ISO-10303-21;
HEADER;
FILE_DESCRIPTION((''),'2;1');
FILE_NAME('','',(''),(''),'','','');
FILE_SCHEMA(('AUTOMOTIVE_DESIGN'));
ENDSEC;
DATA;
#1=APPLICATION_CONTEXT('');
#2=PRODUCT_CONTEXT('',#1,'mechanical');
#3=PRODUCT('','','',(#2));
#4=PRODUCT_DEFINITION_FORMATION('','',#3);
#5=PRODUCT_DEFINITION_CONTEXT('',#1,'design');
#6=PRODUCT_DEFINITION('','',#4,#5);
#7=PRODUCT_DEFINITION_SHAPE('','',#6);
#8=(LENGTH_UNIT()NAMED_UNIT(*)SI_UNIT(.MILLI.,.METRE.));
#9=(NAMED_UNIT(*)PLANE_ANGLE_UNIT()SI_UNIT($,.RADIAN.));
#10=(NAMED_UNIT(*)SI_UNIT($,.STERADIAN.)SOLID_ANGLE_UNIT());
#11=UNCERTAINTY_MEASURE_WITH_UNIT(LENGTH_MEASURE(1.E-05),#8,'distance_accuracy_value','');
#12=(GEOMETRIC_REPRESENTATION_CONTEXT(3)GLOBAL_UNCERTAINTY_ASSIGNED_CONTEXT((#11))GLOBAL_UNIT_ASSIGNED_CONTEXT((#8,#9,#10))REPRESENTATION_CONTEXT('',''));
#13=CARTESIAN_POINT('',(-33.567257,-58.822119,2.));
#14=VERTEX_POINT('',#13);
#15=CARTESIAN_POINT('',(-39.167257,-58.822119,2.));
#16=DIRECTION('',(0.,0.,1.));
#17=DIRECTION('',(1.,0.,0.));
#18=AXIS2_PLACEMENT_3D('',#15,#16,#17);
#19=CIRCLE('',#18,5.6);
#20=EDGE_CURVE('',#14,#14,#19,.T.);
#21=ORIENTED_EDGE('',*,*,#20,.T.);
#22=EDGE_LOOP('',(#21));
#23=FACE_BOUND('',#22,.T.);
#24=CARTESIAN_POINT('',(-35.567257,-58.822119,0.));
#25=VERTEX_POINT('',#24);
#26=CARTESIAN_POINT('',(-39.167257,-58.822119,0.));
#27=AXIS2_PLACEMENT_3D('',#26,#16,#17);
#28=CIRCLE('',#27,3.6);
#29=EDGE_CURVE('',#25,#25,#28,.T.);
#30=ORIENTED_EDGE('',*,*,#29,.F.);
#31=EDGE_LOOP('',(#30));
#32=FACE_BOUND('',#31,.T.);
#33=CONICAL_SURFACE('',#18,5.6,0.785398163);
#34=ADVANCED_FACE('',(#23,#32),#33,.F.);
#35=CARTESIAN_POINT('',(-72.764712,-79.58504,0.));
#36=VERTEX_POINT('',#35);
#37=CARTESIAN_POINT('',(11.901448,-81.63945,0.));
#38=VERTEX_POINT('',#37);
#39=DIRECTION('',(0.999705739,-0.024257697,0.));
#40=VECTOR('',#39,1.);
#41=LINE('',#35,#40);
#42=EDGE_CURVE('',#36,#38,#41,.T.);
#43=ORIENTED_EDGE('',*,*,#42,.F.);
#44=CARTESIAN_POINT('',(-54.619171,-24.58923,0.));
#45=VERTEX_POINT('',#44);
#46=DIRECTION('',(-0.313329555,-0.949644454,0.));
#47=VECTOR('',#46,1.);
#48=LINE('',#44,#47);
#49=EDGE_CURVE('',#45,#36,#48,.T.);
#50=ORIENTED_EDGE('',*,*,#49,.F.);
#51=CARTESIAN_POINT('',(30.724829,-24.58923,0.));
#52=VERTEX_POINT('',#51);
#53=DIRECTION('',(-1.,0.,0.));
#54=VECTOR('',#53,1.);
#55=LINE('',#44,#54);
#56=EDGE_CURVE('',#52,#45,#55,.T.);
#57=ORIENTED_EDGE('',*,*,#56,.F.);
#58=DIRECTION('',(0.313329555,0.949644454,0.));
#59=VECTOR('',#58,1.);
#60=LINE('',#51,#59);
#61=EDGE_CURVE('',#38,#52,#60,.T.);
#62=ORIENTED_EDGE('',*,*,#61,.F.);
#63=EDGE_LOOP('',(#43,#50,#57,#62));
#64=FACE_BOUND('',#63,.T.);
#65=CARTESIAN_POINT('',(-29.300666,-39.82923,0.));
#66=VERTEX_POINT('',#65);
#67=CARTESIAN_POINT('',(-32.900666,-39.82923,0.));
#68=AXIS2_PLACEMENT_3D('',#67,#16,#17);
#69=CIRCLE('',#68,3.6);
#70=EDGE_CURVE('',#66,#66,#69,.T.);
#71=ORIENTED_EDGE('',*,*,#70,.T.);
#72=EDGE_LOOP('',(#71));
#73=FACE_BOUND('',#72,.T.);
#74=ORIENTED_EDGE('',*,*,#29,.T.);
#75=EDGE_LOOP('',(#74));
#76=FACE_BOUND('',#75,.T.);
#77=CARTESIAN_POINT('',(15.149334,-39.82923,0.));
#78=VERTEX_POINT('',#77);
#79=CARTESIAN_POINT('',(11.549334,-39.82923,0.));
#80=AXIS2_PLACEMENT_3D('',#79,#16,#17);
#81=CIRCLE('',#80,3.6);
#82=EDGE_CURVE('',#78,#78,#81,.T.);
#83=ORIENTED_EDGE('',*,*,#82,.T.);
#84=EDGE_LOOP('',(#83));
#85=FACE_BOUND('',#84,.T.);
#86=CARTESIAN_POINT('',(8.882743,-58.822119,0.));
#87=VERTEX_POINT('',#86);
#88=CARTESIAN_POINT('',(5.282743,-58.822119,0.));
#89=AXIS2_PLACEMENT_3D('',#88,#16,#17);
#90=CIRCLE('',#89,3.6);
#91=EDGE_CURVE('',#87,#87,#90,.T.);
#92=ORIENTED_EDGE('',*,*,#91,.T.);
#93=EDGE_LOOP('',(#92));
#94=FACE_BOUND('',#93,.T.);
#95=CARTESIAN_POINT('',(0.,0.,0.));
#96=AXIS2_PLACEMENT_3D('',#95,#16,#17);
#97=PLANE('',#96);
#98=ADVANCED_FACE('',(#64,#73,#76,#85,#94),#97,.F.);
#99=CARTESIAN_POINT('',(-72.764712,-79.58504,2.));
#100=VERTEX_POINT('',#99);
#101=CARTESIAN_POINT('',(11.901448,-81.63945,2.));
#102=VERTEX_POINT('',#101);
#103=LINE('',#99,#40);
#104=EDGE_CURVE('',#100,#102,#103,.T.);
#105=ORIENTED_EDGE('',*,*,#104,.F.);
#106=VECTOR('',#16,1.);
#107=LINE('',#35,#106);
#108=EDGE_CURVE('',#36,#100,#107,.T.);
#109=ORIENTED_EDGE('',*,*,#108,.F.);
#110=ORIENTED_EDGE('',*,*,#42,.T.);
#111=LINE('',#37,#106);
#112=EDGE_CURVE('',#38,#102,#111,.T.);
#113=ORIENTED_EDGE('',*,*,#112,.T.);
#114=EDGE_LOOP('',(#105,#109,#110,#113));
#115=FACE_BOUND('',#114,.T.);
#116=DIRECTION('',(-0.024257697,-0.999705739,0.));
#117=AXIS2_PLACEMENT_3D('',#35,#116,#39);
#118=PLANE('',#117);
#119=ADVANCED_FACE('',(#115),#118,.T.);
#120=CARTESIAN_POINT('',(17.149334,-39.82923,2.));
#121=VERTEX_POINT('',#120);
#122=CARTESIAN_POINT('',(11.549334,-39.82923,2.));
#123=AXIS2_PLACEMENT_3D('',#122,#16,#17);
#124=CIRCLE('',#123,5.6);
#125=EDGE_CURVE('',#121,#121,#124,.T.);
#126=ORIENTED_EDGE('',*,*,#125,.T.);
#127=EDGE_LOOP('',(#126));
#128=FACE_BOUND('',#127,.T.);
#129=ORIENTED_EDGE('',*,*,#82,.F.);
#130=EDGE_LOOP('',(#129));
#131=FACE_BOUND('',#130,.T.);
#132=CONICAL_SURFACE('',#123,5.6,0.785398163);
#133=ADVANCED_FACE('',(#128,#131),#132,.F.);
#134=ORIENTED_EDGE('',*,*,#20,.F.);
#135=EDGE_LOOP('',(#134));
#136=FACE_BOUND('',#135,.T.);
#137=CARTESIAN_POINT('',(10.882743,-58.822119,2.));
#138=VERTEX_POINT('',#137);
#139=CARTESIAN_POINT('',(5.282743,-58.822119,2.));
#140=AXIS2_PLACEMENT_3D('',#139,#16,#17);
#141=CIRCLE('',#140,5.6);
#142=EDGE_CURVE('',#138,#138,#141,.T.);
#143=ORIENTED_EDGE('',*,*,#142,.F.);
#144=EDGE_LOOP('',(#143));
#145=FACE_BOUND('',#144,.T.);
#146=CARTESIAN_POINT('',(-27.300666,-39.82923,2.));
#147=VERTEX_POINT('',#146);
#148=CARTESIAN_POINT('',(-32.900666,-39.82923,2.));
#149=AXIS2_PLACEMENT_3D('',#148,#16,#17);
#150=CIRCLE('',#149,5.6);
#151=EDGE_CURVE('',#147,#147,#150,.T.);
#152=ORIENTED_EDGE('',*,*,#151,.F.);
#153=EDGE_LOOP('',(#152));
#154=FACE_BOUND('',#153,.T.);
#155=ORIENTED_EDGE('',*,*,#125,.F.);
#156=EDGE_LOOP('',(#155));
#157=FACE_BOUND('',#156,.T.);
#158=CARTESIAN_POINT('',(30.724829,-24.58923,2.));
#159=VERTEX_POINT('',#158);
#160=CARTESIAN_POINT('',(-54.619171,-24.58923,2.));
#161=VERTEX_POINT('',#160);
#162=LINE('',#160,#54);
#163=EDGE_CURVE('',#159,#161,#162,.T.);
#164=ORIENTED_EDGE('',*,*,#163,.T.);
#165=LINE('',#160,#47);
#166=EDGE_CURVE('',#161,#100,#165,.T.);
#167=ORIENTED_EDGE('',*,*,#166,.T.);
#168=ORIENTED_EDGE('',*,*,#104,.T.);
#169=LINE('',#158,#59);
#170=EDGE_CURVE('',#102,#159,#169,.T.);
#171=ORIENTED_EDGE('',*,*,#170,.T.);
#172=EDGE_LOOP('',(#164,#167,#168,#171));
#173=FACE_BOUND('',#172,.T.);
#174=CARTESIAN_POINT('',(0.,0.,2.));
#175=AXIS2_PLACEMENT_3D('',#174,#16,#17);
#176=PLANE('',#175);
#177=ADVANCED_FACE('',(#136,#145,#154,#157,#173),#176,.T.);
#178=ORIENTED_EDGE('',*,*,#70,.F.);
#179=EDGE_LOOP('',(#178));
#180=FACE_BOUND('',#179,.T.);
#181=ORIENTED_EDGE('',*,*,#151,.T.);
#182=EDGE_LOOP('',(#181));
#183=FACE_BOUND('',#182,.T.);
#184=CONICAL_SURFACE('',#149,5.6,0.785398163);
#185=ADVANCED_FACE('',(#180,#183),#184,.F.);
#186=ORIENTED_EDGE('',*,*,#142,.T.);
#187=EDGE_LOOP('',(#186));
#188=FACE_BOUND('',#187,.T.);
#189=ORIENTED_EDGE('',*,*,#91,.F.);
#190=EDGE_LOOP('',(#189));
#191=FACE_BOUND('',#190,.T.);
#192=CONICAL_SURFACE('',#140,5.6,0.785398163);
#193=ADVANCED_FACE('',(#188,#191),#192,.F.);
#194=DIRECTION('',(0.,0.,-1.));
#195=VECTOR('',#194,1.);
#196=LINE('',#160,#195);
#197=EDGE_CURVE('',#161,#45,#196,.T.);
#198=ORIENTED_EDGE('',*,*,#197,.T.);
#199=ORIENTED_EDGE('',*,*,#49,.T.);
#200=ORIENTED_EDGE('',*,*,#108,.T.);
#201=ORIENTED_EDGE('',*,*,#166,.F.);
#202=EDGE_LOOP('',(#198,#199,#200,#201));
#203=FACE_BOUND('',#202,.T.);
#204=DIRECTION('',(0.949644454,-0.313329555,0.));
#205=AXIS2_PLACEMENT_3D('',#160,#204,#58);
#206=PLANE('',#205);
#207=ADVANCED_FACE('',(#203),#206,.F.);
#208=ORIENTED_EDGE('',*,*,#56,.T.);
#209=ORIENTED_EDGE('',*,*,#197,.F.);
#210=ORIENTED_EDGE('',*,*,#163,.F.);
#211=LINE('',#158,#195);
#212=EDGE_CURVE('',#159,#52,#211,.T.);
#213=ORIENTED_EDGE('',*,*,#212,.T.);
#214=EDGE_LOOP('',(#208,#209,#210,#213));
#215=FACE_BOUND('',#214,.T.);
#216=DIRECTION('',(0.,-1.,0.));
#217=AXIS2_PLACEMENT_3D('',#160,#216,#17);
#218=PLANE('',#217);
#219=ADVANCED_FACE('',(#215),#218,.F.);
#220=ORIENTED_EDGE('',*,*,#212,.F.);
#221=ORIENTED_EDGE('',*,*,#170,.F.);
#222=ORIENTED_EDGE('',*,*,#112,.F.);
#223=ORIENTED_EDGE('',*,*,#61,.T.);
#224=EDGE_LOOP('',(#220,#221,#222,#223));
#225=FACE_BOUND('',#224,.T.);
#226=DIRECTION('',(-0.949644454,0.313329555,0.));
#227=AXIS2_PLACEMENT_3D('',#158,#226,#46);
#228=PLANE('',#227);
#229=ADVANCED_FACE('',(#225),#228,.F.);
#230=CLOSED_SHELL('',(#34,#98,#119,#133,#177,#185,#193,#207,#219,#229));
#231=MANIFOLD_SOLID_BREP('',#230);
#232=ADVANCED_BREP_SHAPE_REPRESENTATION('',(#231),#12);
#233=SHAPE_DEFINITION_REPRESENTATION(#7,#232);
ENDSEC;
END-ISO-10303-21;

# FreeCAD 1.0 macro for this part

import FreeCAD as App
import Part
import Sketcher
Q = App.Units.Quantity


def add_polygon(sketch, points):
    """Adds a closed chain of lines whose ends are joined by coincident constraints."""
    first, n = sketch.GeometryCount, len(points)
    for a, b in zip(points, points[1:] + points[:1]):
        sketch.addGeometry(Part.LineSegment(App.Vector(*a, 0), App.Vector(*b, 0)), False)
    for i in range(n):
        sketch.addConstraint(Sketcher.Constraint("Coincident", first + i, 2, first + (i + 1) % n, 1))

doc = App.newDocument("Part")
params = doc.addObject("Spreadsheet::Sheet", "Params")
for row, (alias, value) in enumerate([
    ("pad1_length", "2 mm"),
    ("pad2_length", "2 mm"),
    ("sketch3_diameter", "5 mm"),
    ("pocket1_length", "2 mm"),
    ("sketch4_height", "2 mm"),
    ("sketch4_width", "5.6 mm"),
    ("sketch4_width2", "2.75 mm"),
    ("groove_angle", "360 deg"),
    ("linearpattern_pitch", "44.45 mm"),
    ("linearpattern2_pitch", "42.646249 mm"),
    ("linearpattern3_pitch", "20 mm"),
], start=1):
    params.set(f"A{row}", alias)
    params.set(f"B{row}", "=" + value)
    params.setAlias(f"B{row}", alias)

body = doc.addObject("PartDesign::Body", "Body")

# Sketch on XY plane
sketch1 = doc.addObject("Sketcher::SketchObject", "Sketch")
body.addObject(sketch1)
sketch1.AttachmentSupport = (doc.XY_Plane, [""])
sketch1.MapMode = "FlatFace"
add_polygon(sketch1, [(30.724829, -24.58923), (-54.619171, -24.58923), (-71.491341, -75.725685), (13.852659, -75.725685)])  # lines 0-3
sketch1.addConstraint([
    Sketcher.Constraint("Horizontal", 0),
    Sketcher.Constraint("Horizontal", 2),
    Sketcher.Constraint("Parallel", 1, 3),
    Sketcher.Constraint("Angle", 1, Q("-108.26 deg")),
    Sketcher.Constraint("DistanceX", 0, 2, 0, 1, 85.344),
    Sketcher.Constraint("Distance", 1, 53.848),
    Sketcher.Constraint("DistanceX", 0, 2, -1, 1, 54.619171),
    Sketcher.Constraint("DistanceY", 0, 2, -1, 1, 24.58923),
])
pad1 = doc.addObject("PartDesign::Pad", "Pad")
body.addObject(pad1)
pad1.Profile = sketch1
pad1.setExpression("Length", "Params.pad1_length")

# Sketch on XY plane
sketch2 = doc.addObject("Sketcher::SketchObject", "Sketch001")
body.addObject(sketch2)
sketch2.AttachmentSupport = (doc.XY_Plane, [""])
sketch2.MapMode = "FlatFace"
sketch2.AttachmentOffset = App.Placement(App.Vector(0, 0, 2), App.Rotation())
add_polygon(sketch2, [(-72.764712, -79.58504), (11.901448, -81.63945), (13.852659, -75.725685), (-71.491341, -75.725685)])  # lines 0-3
sketch2.addConstraint([
    Sketcher.Constraint("Horizontal", 2),
    Sketcher.Constraint("Parallel", 1, 3),
    Sketcher.Constraint("Angle", 0, Q("-1.39 deg")),
    Sketcher.Constraint("Angle", 1, Q("71.74 deg")),
    Sketcher.Constraint("DistanceX", 2, 2, 2, 1, 85.344),
    Sketcher.Constraint("Distance", 3, 4.064),
    Sketcher.Constraint("DistanceY", 0, 2, -1, 1, 81.63945),
    Sketcher.Constraint("DistanceX", -1, 1, 1, 2, 13.852659),
])
pad2 = doc.addObject("PartDesign::Pad", "Pad001")
body.addObject(pad2)
pad2.Profile = sketch2
pad2.setExpression("Length", "Params.pad2_length")
pad2.Reversed = True

# Sketch on XY plane
sketch3 = doc.addObject("Sketcher::SketchObject", "Sketch002")
body.addObject(sketch3)
sketch3.AttachmentSupport = (doc.XY_Plane, [""])
sketch3.MapMode = "FlatFace"
sketch3.AttachmentOffset = App.Placement(App.Vector(0, 0, 2), App.Rotation())
sketch3.addGeometry([
    Part.Circle(App.Vector(-32.900666, -39.82923, 0), App.Vector(0, 0, 1), 2.5),
    Part.Circle(App.Vector(11.549334, -39.82923, 0), App.Vector(0, 0, 1), 2.5),
    Part.Circle(App.Vector(5.282743, -58.822119, 0), App.Vector(0, 0, 1), 2.5),
    Part.Circle(App.Vector(-39.167257, -58.822119, 0), App.Vector(0, 0, 1), 2.5),
], False)
sketch3.addConstraint([
    Sketcher.Constraint("Equal", 0, 1),
    Sketcher.Constraint("Equal", 1, 2),
    Sketcher.Constraint("Equal", 2, 3),
    Sketcher.Constraint("Horizontal", 0, 3, 1, 3),
    Sketcher.Constraint("Horizontal", 2, 3, 3, 3),
    Sketcher.Constraint("Diameter", 0, 5.0),
    Sketcher.Constraint("DistanceX", 0, 3, 1, 3, 44.45),
    Sketcher.Constraint("DistanceX", 3, 3, 2, 3, 44.45),
    Sketcher.Constraint("DistanceY", 0, 3, -1, 1, 39.82923),
    Sketcher.Constraint("DistanceY", 2, 3, -1, 1, 58.822119),
    Sketcher.Constraint("DistanceX", 2, 3, 1, 3, 6.266591),
    Sketcher.Constraint("DistanceX", 0, 3, -1, 1, 32.900666),
])
sketch3.setExpression("Constraints[5]", "Params.sketch3_diameter")
pocket1 = doc.addObject("PartDesign::Pocket", "Pocket")
body.addObject(pocket1)
pocket1.Profile = sketch3
pocket1.setExpression("Length", "Params.pocket1_length")

# Sketch on YZ plane
sketch4 = doc.addObject("Sketcher::SketchObject", "Sketch003")
body.addObject(sketch4)
sketch4.AttachmentSupport = (doc.YZ_Plane, [""])
sketch4.MapMode = "FlatFace"
sketch4.AttachmentOffset = App.Placement(App.Vector(0, 0, -32.900666), App.Rotation())
add_polygon(sketch4, [(-39.82923, 0), (-39.82923, 2), (-45.42923, 2), (-42.57923, -0.85), (-42.57923, 0)])  # lines 0-4
sketch4.addGeometry(Part.LineSegment(App.Vector(-39.82923, 2, 0), App.Vector(-39.82923, -0.85, 0)), True)  # axis
sketch4.addConstraint([
    Sketcher.Constraint("Vertical", 0),
    Sketcher.Constraint("Horizontal", 1),
    Sketcher.Constraint("Vertical", 3),
    Sketcher.Constraint("Horizontal", 4),
    Sketcher.Constraint("Vertical", 5),
    Sketcher.Constraint("Coincident", 5, 1, 0, 2),
    Sketcher.Constraint("PointOnObject", 3, 2, -1),
    Sketcher.Constraint("Horizontal", 2, 2, 5, 2),
    Sketcher.Constraint("DistanceY", 0, 1, 0, 2, 2.0),
    Sketcher.Constraint("Angle", 2, Q("-45 deg")),
    Sketcher.Constraint("DistanceX", 1, 2, 1, 1, 5.6),
    Sketcher.Constraint("DistanceX", 4, 1, 4, 2, 2.75),
    Sketcher.Constraint("DistanceX", 0, 2, -1, 1, 39.82923),
])
sketch4.setExpression("Constraints[13]", "Params.sketch4_height")
sketch4.setExpression("Constraints[15]", "Params.sketch4_width")
sketch4.setExpression("Constraints[16]", "Params.sketch4_width2")
groove = doc.addObject("PartDesign::Groove", "Groove")
body.addObject(groove)
groove.Profile = sketch4
groove.ReferenceAxis = (sketch4, ["Axis0"])
groove.setExpression("Angle", "Params.groove_angle")
doc.recompute()

linearpattern = doc.addObject("PartDesign::LinearPattern", "LinearPattern")
body.addObject(linearpattern)
linearpattern.Originals = [groove]
linearpattern.Direction = (doc.X_Axis, [""])
linearpattern.Mode = "offset"
linearpattern.setExpression("Offset", "Params.linearpattern_pitch")
linearpattern.Occurrences = 2
body.Tip = linearpattern
doc.recompute()

datumline = doc.addObject("PartDesign::Line", "DatumLine")
body.addObject(datumline)
datumline.Placement = App.Placement(App.Vector(0, 0, 0), App.Rotation(App.Vector(0, 0, 1), App.Vector(0.895352108, -0.44535896, 0)))
linearpattern2 = doc.addObject("PartDesign::LinearPattern", "LinearPattern001")
body.addObject(linearpattern2)
linearpattern2.Originals = [groove]
linearpattern2.Direction = (datumline, [""])
linearpattern2.Mode = "offset"
linearpattern2.setExpression("Offset", "Params.linearpattern2_pitch")
linearpattern2.Occurrences = 2
body.Tip = linearpattern2
doc.recompute()

datumline2 = doc.addObject("PartDesign::Line", "DatumLine001")
body.addObject(datumline2)
datumline2.Placement = App.Placement(App.Vector(0, 0, 0), App.Rotation(App.Vector(0, 0, 1), App.Vector(-0.313329555, -0.949644454, 0)))
linearpattern3 = doc.addObject("PartDesign::LinearPattern", "LinearPattern002")
body.addObject(linearpattern3)
linearpattern3.Originals = [groove]
linearpattern3.Direction = (datumline2, [""])
linearpattern3.Mode = "offset"
linearpattern3.setExpression("Offset", "Params.linearpattern3_pitch")
linearpattern3.Occurrences = 2
body.Tip = linearpattern3

doc.recompute()
